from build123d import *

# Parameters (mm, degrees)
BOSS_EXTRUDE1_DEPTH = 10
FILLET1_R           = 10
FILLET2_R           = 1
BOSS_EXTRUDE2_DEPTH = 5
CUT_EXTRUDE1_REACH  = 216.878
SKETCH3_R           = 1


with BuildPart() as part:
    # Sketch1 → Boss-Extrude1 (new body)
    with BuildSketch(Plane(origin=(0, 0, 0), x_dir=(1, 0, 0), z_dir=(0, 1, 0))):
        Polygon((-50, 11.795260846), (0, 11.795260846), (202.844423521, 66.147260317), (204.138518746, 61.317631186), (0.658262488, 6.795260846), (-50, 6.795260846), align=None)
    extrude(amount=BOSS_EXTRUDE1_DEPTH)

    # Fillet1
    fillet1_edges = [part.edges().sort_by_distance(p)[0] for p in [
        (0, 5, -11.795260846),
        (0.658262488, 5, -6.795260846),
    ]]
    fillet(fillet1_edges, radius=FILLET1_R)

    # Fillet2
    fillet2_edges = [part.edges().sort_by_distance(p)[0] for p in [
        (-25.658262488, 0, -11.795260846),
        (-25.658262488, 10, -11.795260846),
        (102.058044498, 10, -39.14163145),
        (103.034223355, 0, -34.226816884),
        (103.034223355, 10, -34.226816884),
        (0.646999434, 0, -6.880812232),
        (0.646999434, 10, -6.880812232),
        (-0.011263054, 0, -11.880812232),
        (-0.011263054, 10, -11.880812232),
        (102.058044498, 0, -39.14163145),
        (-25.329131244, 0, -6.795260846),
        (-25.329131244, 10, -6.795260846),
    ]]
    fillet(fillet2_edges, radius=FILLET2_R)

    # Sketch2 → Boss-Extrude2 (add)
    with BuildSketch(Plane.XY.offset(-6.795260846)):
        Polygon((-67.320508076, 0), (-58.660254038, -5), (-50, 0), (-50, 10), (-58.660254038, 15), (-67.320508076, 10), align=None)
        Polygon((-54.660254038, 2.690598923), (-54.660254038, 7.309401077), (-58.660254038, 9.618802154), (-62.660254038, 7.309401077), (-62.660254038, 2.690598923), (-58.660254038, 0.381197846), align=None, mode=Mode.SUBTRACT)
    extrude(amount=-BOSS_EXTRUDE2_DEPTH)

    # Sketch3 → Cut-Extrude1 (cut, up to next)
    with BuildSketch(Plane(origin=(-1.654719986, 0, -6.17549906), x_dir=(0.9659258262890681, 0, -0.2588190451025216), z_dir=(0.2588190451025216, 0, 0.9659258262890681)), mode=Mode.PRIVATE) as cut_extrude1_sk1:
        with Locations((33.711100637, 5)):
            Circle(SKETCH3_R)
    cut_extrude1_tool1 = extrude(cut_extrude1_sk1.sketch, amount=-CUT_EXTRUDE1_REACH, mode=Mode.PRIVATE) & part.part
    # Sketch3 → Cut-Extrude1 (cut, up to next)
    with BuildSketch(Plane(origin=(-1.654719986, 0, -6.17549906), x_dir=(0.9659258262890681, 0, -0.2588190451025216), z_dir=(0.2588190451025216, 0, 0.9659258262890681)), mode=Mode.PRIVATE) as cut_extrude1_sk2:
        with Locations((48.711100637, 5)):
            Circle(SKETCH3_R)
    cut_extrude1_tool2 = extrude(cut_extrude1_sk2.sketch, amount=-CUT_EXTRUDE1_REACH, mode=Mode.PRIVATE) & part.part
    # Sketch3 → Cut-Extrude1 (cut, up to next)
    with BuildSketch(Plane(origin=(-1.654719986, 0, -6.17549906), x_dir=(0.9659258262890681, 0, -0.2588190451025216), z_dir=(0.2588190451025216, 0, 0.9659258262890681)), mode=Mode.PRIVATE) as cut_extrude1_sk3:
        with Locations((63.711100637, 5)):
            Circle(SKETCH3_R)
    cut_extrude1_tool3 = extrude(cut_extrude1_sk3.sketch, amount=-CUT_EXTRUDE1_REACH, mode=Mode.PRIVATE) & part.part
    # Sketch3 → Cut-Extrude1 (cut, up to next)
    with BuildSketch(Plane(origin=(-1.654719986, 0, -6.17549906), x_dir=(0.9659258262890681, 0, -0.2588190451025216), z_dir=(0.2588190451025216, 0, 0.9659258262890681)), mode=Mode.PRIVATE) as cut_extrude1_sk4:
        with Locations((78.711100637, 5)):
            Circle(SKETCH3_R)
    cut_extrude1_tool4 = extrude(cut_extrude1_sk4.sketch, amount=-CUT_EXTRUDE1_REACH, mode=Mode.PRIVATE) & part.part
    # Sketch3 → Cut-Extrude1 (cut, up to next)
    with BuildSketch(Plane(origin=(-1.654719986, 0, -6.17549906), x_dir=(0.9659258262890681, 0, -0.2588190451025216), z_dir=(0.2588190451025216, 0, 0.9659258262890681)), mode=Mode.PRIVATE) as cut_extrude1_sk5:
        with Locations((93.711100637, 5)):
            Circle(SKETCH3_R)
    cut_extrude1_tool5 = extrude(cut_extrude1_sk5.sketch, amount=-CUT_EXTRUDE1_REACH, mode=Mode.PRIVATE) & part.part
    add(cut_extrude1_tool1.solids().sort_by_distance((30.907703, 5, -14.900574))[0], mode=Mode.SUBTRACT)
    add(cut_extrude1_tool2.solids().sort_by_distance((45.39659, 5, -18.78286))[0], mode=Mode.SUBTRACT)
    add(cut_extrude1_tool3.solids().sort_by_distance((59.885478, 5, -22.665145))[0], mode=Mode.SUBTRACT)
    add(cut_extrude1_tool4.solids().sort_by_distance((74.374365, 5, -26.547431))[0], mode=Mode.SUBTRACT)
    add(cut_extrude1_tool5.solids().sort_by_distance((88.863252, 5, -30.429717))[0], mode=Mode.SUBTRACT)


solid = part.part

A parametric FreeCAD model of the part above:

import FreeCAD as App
import Part
import Sketcher
from FreeCAD import Vector
Q = App.Units.Quantity


def edges_at(feature, points):
    """Names of the edges that pass closest to the given points."""
    edges = feature.Shape.Edges
    near = lambda p: min(range(len(edges)), key=lambda i: edges[i].distToShape(Part.Vertex(*p))[0])
    return sorted({f"Edge{near(p) + 1}" for p in points})

doc = App.newDocument("Part")
body = doc.addObject("PartDesign::Body", "Body")

# Sketch on XZ plane
sketch1 = body.newObject("Sketcher::SketchObject", "Sketch")
sketch1.AttachmentSupport = (doc.getObject("XZ_Plane"), [""])
sketch1.MapMode = "FlatFace"
sketch1.addGeometry(Part.LineSegment(Vector(0, -11.8, 0), Vector(-50, -11.8, 0)), False)
sketch1.addGeometry(Part.LineSegment(Vector(-50, -11.8, 0), Vector(-50, -6.8, 0)), False)
sketch1.addGeometry(Part.LineSegment(Vector(-50, -6.8, 0), Vector(0.7, -6.8, 0)), False)
sketch1.addGeometry(Part.LineSegment(Vector(0.7, -6.8, 0), Vector(204.1, -61.3, 0)), False)
sketch1.addGeometry(Part.LineSegment(Vector(204.1, -61.3, 0), Vector(202.8, -66.1, 0)), False)
sketch1.addGeometry(Part.LineSegment(Vector(202.8, -66.1, 0), Vector(0, -11.8, 0)), False)
sketch1.addConstraint(Sketcher.Constraint("Coincident", 0, 2, 1, 1))
sketch1.addConstraint(Sketcher.Constraint("Coincident", 1, 2, 2, 1))
sketch1.addConstraint(Sketcher.Constraint("Coincident", 2, 2, 3, 1))
sketch1.addConstraint(Sketcher.Constraint("Coincident", 3, 2, 4, 1))
sketch1.addConstraint(Sketcher.Constraint("Coincident", 4, 2, 5, 1))
sketch1.addConstraint(Sketcher.Constraint("Coincident", 5, 2, 0, 1))
sketch1.addConstraint(Sketcher.Constraint("Horizontal", 0))
sketch1.addConstraint(Sketcher.Constraint("Vertical", 1))
sketch1.addConstraint(Sketcher.Constraint("Horizontal", 2))
sketch1.addConstraint(Sketcher.Constraint("PointOnObject", 5, 2, -2))
sketch1.addConstraint(Sketcher.Constraint("Perpendicular", 3, 4))
sketch1.addConstraint(Sketcher.Constraint("Perpendicular", 4, 5))
sketch1.addConstraint(Sketcher.Constraint("DistanceX", 0, 2, 0, 1, 50.0))
sketch1.addConstraint(Sketcher.Constraint("DistanceY", 1, 1, 1, 2, 5.0))
sketch1.addConstraint(Sketcher.Constraint("Angle", 3, Q("-15 deg")))
sketch1.addConstraint(Sketcher.Constraint("Distance", 4, 5.0))
sketch1.addConstraint(Sketcher.Constraint("Distance", 5, 210.0))
sketch1.addConstraint(Sketcher.Constraint("DistanceY", 0, 2, -1, 1, 11.795261))
pad1 = body.newObject("PartDesign::Pad", "Pad")
pad1.Profile = sketch1
pad1.Length = 10
pad1.Reversed = True
doc.recompute()

fillet = body.newObject("PartDesign::Fillet", "Fillet")
fillet.Base = (pad1, edges_at(pad1, [(0, 5, -11.795), (0.658, 5, -6.795)]))
fillet.Radius = 10
doc.recompute()

fillet2 = body.newObject("PartDesign::Fillet", "Fillet001")
fillet2.Base = (fillet, edges_at(fillet, [
    (-25.658, 0, -11.795),
    (-25.658, 10, -11.795),
    (102.058, 10, -39.142),
    (103.034, 0, -34.227),
    (103.034, 10, -34.227),
    (0.647, 0, -6.881),
    (0.647, 10, -6.881),
    (-0.011, 0, -11.881),
    (-0.011, 10, -11.881),
    (102.058, 0, -39.142),
    (-25.329, 0, -6.795),
    (-25.329, 10, -6.795),
]))
fillet2.Radius = 1

# Sketch on XY plane
sketch2 = body.newObject("Sketcher::SketchObject", "Sketch001")
sketch2.AttachmentSupport = (doc.getObject("XY_Plane"), [""])
sketch2.MapMode = "FlatFace"
sketch2.AttachmentOffset = App.Placement(Vector(0, 0, -6.795261), App.Rotation())
sketch2.addGeometry(Part.LineSegment(Vector(-67.3, 0, 0), Vector(-58.7, -5, 0)), False)
sketch2.addGeometry(Part.LineSegment(Vector(-58.7, -5, 0), Vector(-50, 0, 0)), False)
sketch2.addGeometry(Part.LineSegment(Vector(-50, 0, 0), Vector(-50, 10, 0)), False)
sketch2.addGeometry(Part.LineSegment(Vector(-50, 10, 0), Vector(-58.7, 15, 0)), False)
sketch2.addGeometry(Part.LineSegment(Vector(-58.7, 15, 0), Vector(-67.3, 10, 0)), False)
sketch2.addGeometry(Part.LineSegment(Vector(-67.3, 10, 0), Vector(-67.3, 0, 0)), False)
sketch2.addGeometry(Part.LineSegment(Vector(-54.7, 7.3, 0), Vector(-54.7, 2.7, 0)), False)
sketch2.addGeometry(Part.LineSegment(Vector(-54.7, 2.7, 0), Vector(-58.7, 0.4, 0)), False)
sketch2.addGeometry(Part.LineSegment(Vector(-58.7, 0.4, 0), Vector(-62.7, 2.7, 0)), False)
sketch2.addGeometry(Part.LineSegment(Vector(-62.7, 2.7, 0), Vector(-62.7, 7.3, 0)), False)
sketch2.addGeometry(Part.LineSegment(Vector(-62.7, 7.3, 0), Vector(-58.7, 9.6, 0)), False)
sketch2.addGeometry(Part.LineSegment(Vector(-58.7, 9.6, 0), Vector(-54.7, 7.3, 0)), False)
sketch2.addConstraint(Sketcher.Constraint("Coincident", 0, 2, 1, 1))
sketch2.addConstraint(Sketcher.Constraint("Coincident", 1, 2, 2, 1))
sketch2.addConstraint(Sketcher.Constraint("Coincident", 2, 2, 3, 1))
sketch2.addConstraint(Sketcher.Constraint("Coincident", 3, 2, 4, 1))
sketch2.addConstraint(Sketcher.Constraint("Coincident", 4, 2, 5, 1))
sketch2.addConstraint(Sketcher.Constraint("Coincident", 5, 2, 0, 1))
sketch2.addConstraint(Sketcher.Constraint("Coincident", 6, 2, 7, 1))
sketch2.addConstraint(Sketcher.Constraint("Coincident", 7, 2, 8, 1))
sketch2.addConstraint(Sketcher.Constraint("Coincident", 8, 2, 9, 1))
sketch2.addConstraint(Sketcher.Constraint("Coincident", 9, 2, 10, 1))
sketch2.addConstraint(Sketcher.Constraint("Coincident", 10, 2, 11, 1))
sketch2.addConstraint(Sketcher.Constraint("Coincident", 11, 2, 6, 1))
sketch2.addConstraint(Sketcher.Constraint("Vertical", 2))
sketch2.addConstraint(Sketcher.Constraint("Vertical", 5))
sketch2.addConstraint(Sketcher.Constraint("Vertical", 6))
sketch2.addConstraint(Sketcher.Constraint("Vertical", 9))
sketch2.addConstraint(Sketcher.Constraint("PointOnObject", 1, 2, -1))
sketch2.addConstraint(Sketcher.Constraint("PointOnObject", 5, 2, -1))
sketch2.addConstraint(Sketcher.Constraint("Parallel", 0, 3))
sketch2.addConstraint(Sketcher.Constraint("Parallel", 1, 4))
sketch2.addConstraint(Sketcher.Constraint("Parallel", 4, 7))
sketch2.addConstraint(Sketcher.Constraint("Parallel", 3, 8))
sketch2.addConstraint(Sketcher.Constraint("Parallel", 7, 10))
sketch2.addConstraint(Sketcher.Constraint("Parallel", 8, 11))
sketch2.addConstraint(Sketcher.Constraint("Horizontal", 2, 2, 4, 2))
sketch2.addConstraint(Sketcher.Constraint("Horizontal", 6, 2, 8, 2))
sketch2.addConstraint(Sketcher.Constraint("Horizontal", 9, 2, 11, 2))
sketch2.addConstraint(Sketcher.Constraint("Vertical", 0, 2, 3, 2))
sketch2.addConstraint(Sketcher.Constraint("Vertical", 3, 2, 7, 2))
sketch2.addConstraint(Sketcher.Constraint("DistanceY", 2, 1, 2, 2, 10.0))
sketch2.addConstraint(Sketcher.Constraint("Angle", 0, Q("-30 deg")))
sketch2.addConstraint(Sketcher.Constraint("Distance", 0, 10.0))
sketch2.addConstraint(Sketcher.Constraint("DistanceX", 1, 2, -1, 1, 50.0))
sketch2.addConstraint(Sketcher.Constraint("DistanceX", 0, 2, 6, 2, 4.0))
sketch2.addConstraint(Sketcher.Constraint("DistanceY", -1, 1, 6, 2, 2.690599))
sketch2.addConstraint(Sketcher.Constraint("DistanceY", -1, 1, 9, 2, 7.309401))
pad2 = body.newObject("PartDesign::Pad", "Pad001")
pad2.Profile = sketch2
pad2.Length = 5
pad2.Reversed = True

# Sketch on an angled plane
sketch3 = body.newObject("Sketcher::SketchObject", "Sketch002")
sketch3.Placement = App.Placement(Vector(-1.65472, 0, -6.175499), App.Rotation(Vector(0.965925826, 0, -0.258819045), Vector(0, 0.999999999, 0), Vector(0.258819045, 0, 0.965925826), "ZXY"))
sketch3.addGeometry(Part.Circle(Vector(33.7, 5, 0), Vector(0, 0, 1), 1), False)
sketch3.addConstraint(Sketcher.Constraint("Diameter", 0, 2.0))
sketch3.addConstraint(Sketcher.Constraint("DistanceY", -1, 1, 0, 3, 5.0))
sketch3.addConstraint(Sketcher.Constraint("DistanceX", -1, 1, 0, 3, 33.711101))
pocket1 = body.newObject("PartDesign::Pocket", "Pocket")
pocket1.Profile = sketch3
pocket1.Type = "UpToFirst"

# Sketch on an angled plane
sketch4 = body.newObject("Sketcher::SketchObject", "Sketch003")
sketch4.Placement = App.Placement(Vector(-1.65472, 0, -6.175499), App.Rotation(Vector(0.965925826, 0, -0.258819045), Vector(0, 0.999999999, 0), Vector(0.258819045, 0, 0.965925826), "ZXY"))
sketch4.addGeometry(Part.Circle(Vector(48.7, 5, 0), Vector(0, 0, 1), 1), False)
sketch4.addConstraint(Sketcher.Constraint("Diameter", 0, 2.0))
sketch4.addConstraint(Sketcher.Constraint("DistanceY", -1, 1, 0, 3, 5.0))
sketch4.addConstraint(Sketcher.Constraint("DistanceX", -1, 1, 0, 3, 48.711101))
pocket2 = body.newObject("PartDesign::Pocket", "Pocket001")
pocket2.Profile = sketch4
pocket2.Type = "UpToFirst"

# Sketch on an angled plane
sketch5 = body.newObject("Sketcher::SketchObject", "Sketch004")
sketch5.Placement = App.Placement(Vector(-1.65472, 0, -6.175499), App.Rotation(Vector(0.965925826, 0, -0.258819045), Vector(0, 0.999999999, 0), Vector(0.258819045, 0, 0.965925826), "ZXY"))
sketch5.addGeometry(Part.Circle(Vector(63.7, 5, 0), Vector(0, 0, 1), 1), False)
sketch5.addConstraint(Sketcher.Constraint("Diameter", 0, 2.0))
sketch5.addConstraint(Sketcher.Constraint("DistanceY", -1, 1, 0, 3, 5.0))
sketch5.addConstraint(Sketcher.Constraint("DistanceX", -1, 1, 0, 3, 63.711101))
pocket3 = body.newObject("PartDesign::Pocket", "Pocket002")
pocket3.Profile = sketch5
pocket3.Type = "UpToFirst"

# Sketch on an angled plane
sketch6 = body.newObject("Sketcher::SketchObject", "Sketch005")
sketch6.Placement = App.Placement(Vector(-1.65472, 0, -6.175499), App.Rotation(Vector(0.965925826, 0, -0.258819045), Vector(0, 0.999999999, 0), Vector(0.258819045, 0, 0.965925826), "ZXY"))
sketch6.addGeometry(Part.Circle(Vector(78.7, 5, 0), Vector(0, 0, 1), 1), False)
sketch6.addConstraint(Sketcher.Constraint("Diameter", 0, 2.0))
sketch6.addConstraint(Sketcher.Constraint("DistanceY", -1, 1, 0, 3, 5.0))
sketch6.addConstraint(Sketcher.Constraint("DistanceX", -1, 1, 0, 3, 78.711101))
pocket4 = body.newObject("PartDesign::Pocket", "Pocket003")
pocket4.Profile = sketch6
pocket4.Type = "UpToFirst"

# Sketch on an angled plane
sketch7 = body.newObject("Sketcher::SketchObject", "Sketch006")
sketch7.Placement = App.Placement(Vector(-1.65472, 0, -6.175499), App.Rotation(Vector(0.965925826, 0, -0.258819045), Vector(0, 0.999999999, 0), Vector(0.258819045, 0, 0.965925826), "ZXY"))
sketch7.addGeometry(Part.Circle(Vector(93.7, 5, 0), Vector(0, 0, 1), 1), False)
sketch7.addConstraint(Sketcher.Constraint("Diameter", 0, 2.0))
sketch7.addConstraint(Sketcher.Constraint("DistanceY", -1, 1, 0, 3, 5.0))
sketch7.addConstraint(Sketcher.Constraint("DistanceX", -1, 1, 0, 3, 93.711101))
pocket5 = body.newObject("PartDesign::Pocket", "Pocket004")
pocket5.Profile = sketch7
pocket5.Type = "UpToFirst"

doc.recompute()
